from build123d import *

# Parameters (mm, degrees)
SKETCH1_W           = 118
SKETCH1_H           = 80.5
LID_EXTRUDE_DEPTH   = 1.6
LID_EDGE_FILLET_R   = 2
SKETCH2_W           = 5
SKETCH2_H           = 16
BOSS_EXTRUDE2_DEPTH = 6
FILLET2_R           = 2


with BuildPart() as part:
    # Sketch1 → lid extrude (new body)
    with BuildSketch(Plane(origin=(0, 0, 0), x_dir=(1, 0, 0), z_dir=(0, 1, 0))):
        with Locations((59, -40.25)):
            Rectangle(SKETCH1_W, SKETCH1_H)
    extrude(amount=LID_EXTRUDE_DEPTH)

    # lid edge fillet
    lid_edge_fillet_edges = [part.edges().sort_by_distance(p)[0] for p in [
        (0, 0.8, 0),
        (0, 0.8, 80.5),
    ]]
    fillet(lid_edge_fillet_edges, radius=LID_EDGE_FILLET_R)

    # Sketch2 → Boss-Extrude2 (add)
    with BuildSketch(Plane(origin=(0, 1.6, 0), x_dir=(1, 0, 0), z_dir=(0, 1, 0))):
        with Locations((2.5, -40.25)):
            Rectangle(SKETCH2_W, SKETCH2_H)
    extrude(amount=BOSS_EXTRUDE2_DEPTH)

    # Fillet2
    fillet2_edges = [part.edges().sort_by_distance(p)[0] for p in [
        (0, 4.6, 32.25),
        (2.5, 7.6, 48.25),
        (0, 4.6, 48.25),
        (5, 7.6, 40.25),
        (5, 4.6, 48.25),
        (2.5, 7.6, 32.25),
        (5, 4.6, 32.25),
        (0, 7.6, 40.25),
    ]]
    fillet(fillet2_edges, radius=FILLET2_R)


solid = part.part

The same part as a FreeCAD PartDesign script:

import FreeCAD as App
import Part
import Sketcher
from FreeCAD import Vector


def edges_at(feature, points):
    """Names of the edges that pass closest to the given points."""
    edges = feature.Shape.Edges
    near = lambda p: min(range(len(edges)), key=lambda i: edges[i].distToShape(Part.Vertex(*p))[0])
    return sorted({f"Edge{near(p) + 1}" for p in points})

doc = App.newDocument("Part")
body = doc.addObject("PartDesign::Body", "Body")

sketch1 = doc.addObject("Sketcher::SketchObject", "Sketch")
body.addObject(sketch1)
sketch1.AttachmentSupport = (doc.XZ_Plane, [""])
sketch1.MapMode = "FlatFace"
sketch1.addGeometry([
    Part.LineSegment(Vector(0, 0, 0), Vector(0, 80.5, 0)),
    Part.LineSegment(Vector(0, 80.5, 0), Vector(118, 80.5, 0)),
    Part.LineSegment(Vector(118, 80.5, 0), Vector(118, 0, 0)),
    Part.LineSegment(Vector(118, 0, 0), Vector(0, 0, 0)),
], False)
sketch1.addConstraint([
    Sketcher.Constraint("Coincident", 0, 2, 1, 1),
    Sketcher.Constraint("Coincident", 1, 2, 2, 1),
    Sketcher.Constraint("Coincident", 2, 2, 3, 1),
    Sketcher.Constraint("Coincident", 3, 2, 0, 1),
    Sketcher.Constraint("Vertical", 0),
    Sketcher.Constraint("Horizontal", 1),
    Sketcher.Constraint("Vertical", 2),
    Sketcher.Constraint("Horizontal", 3),
    Sketcher.Constraint("Coincident", 3, 2, -1, 1),
    Sketcher.Constraint("DistanceX", 1, 1, 1, 2, 118.0),
    Sketcher.Constraint("DistanceY", 0, 1, 0, 2, 80.5),
])
pad1 = doc.addObject("PartDesign::Pad", "Pad")
body.addObject(pad1)
pad1.Profile = sketch1
pad1.Length = 1.6
pad1.Reversed = True
doc.recompute()

fillet = doc.addObject("PartDesign::Fillet", "Fillet")
body.addObject(fillet)
fillet.Base = (pad1, edges_at(pad1, [(0, 0.8, 0), (0, 0.8, 80.5)]))
fillet.Radius = 2

sketch2 = doc.addObject("Sketcher::SketchObject", "Sketch001")
body.addObject(sketch2)
sketch2.AttachmentSupport = (doc.XZ_Plane, [""])
sketch2.MapMode = "FlatFace"
sketch2.AttachmentOffset = App.Placement(Vector(0, 0, -1.6), App.Rotation())
sketch2.addGeometry([
    Part.LineSegment(Vector(0, 32.25, 0), Vector(0, 48.25, 0)),
    Part.LineSegment(Vector(0, 48.25, 0), Vector(5, 48.25, 0)),
    Part.LineSegment(Vector(5, 48.25, 0), Vector(5, 32.25, 0)),
    Part.LineSegment(Vector(5, 32.25, 0), Vector(0, 32.25, 0)),
], False)
sketch2.addConstraint([
    Sketcher.Constraint("Coincident", 0, 2, 1, 1),
    Sketcher.Constraint("Coincident", 1, 2, 2, 1),
    Sketcher.Constraint("Coincident", 2, 2, 3, 1),
    Sketcher.Constraint("Coincident", 3, 2, 0, 1),
    Sketcher.Constraint("Vertical", 0),
    Sketcher.Constraint("Horizontal", 1),
    Sketcher.Constraint("Vertical", 2),
    Sketcher.Constraint("Horizontal", 3),
    Sketcher.Constraint("PointOnObject", 0, 2, -2),
    Sketcher.Constraint("DistanceX", 1, 1, 1, 2, 5.0),
    Sketcher.Constraint("DistanceY", 0, 1, 0, 2, 16.0),
    Sketcher.Constraint("DistanceY", -1, 1, 0, 2, 48.25),
])
pad2 = doc.addObject("PartDesign::Pad", "Pad001")
body.addObject(pad2)
pad2.Profile = sketch2
pad2.Length = 6
pad2.Reversed = True
doc.recompute()

fillet2 = doc.addObject("PartDesign::Fillet", "Fillet001")
body.addObject(fillet2)
fillet2.Base = (pad2, edges_at(pad2, [
    (0, 4.6, 32.25),
    (2.5, 7.6, 48.25),
    (0, 4.6, 48.25),
    (5, 7.6, 40.25),
    (5, 4.6, 48.25),
    (2.5, 7.6, 32.25),
    (5, 4.6, 32.25),
    (0, 7.6, 40.25),
]))
fillet2.Radius = 2

doc.recompute()
